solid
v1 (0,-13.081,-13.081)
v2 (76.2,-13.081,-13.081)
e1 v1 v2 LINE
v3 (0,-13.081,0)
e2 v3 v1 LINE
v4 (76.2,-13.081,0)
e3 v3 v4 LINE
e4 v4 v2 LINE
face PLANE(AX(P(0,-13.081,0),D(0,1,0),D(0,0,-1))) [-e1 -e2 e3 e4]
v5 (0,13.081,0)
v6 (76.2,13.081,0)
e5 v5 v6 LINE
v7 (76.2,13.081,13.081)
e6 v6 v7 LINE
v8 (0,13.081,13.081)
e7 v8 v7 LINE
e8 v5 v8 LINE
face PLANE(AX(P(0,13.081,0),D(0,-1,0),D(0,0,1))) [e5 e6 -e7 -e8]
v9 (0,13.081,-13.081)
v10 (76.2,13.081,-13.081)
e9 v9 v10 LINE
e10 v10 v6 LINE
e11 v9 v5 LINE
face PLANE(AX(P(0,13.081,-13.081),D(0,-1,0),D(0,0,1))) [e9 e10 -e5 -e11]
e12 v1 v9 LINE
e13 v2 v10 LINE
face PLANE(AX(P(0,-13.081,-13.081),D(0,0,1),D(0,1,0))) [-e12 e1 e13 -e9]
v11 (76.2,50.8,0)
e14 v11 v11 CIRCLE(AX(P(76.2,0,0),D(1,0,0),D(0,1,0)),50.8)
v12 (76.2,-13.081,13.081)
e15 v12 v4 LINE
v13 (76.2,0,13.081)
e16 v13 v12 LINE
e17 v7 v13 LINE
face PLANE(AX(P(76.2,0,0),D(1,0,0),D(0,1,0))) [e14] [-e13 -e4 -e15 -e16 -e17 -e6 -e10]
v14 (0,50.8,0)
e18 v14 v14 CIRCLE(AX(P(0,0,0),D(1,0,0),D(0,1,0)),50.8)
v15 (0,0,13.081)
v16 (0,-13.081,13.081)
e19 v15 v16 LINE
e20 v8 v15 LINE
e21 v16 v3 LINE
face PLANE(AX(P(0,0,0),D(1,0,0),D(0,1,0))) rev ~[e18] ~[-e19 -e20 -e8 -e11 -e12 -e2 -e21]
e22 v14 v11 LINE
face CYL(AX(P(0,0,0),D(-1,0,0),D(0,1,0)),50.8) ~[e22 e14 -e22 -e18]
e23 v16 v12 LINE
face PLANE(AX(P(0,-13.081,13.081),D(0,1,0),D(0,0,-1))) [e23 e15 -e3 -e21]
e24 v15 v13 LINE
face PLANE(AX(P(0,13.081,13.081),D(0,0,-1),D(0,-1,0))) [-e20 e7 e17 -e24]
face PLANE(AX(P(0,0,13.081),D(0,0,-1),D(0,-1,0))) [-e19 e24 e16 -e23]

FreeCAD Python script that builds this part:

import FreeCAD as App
import Part
import Sketcher

V = App.Vector
Q = App.Units.Quantity

doc = App.newDocument("Part")
body = doc.addObject("PartDesign::Body", "Body")

# Sketch on YZ plane
sketch1 = body.newObject("Sketcher::SketchObject", "Sketch")
sketch1.AttachmentSupport = (doc.getObject("YZ_Plane"), [""])
sketch1.MapMode = "FlatFace"
sketch1.addGeometry(Part.Circle(V(0, 0, 0), V(0, 0, 1), 50.8), False)
sketch1.addGeometry(Part.LineSegment(V(-13.081, 13.081, 0), V(13.081, 13.081, 0)), False)
sketch1.addGeometry(Part.LineSegment(V(13.081, 13.081, 0), V(13.081, -13.081, 0)), False)
sketch1.addGeometry(Part.LineSegment(V(13.081, -13.081, 0), V(-13.081, -13.081, 0)), False)
sketch1.addGeometry(Part.LineSegment(V(-13.081, -13.081, 0), V(-13.081, 13.081, 0)), False)
sketch1.addConstraint(Sketcher.Constraint("Coincident", 1, 2, 2, 1))
sketch1.addConstraint(Sketcher.Constraint("Coincident", 2, 2, 3, 1))
sketch1.addConstraint(Sketcher.Constraint("Coincident", 3, 2, 4, 1))
sketch1.addConstraint(Sketcher.Constraint("Coincident", 4, 2, 1, 1))
sketch1.addConstraint(Sketcher.Constraint("Horizontal", 1))
sketch1.addConstraint(Sketcher.Constraint("Vertical", 2))
sketch1.addConstraint(Sketcher.Constraint("Horizontal", 3))
sketch1.addConstraint(Sketcher.Constraint("Vertical", 4))
sketch1.addConstraint(Sketcher.Constraint("Coincident", 0, 3, -1, 1))
sketch1.addConstraint(Sketcher.Constraint("Symmetric", 1, 2, 3, 2, -1, 1))
sketch1.addConstraint(Sketcher.Constraint("Equal", 3, 2))
sketch1.addConstraint(Sketcher.Constraint("Diameter", 0, Q("4 in")))
sketch1.addConstraint(Sketcher.Constraint("DistanceX", 1, 1, 1, 2, Q("1.03 in")))
pad1 = body.newObject("PartDesign::Pad", "Pad")
pad1.Profile = sketch1
pad1.Length = Q("3 in")

doc.recompute()
